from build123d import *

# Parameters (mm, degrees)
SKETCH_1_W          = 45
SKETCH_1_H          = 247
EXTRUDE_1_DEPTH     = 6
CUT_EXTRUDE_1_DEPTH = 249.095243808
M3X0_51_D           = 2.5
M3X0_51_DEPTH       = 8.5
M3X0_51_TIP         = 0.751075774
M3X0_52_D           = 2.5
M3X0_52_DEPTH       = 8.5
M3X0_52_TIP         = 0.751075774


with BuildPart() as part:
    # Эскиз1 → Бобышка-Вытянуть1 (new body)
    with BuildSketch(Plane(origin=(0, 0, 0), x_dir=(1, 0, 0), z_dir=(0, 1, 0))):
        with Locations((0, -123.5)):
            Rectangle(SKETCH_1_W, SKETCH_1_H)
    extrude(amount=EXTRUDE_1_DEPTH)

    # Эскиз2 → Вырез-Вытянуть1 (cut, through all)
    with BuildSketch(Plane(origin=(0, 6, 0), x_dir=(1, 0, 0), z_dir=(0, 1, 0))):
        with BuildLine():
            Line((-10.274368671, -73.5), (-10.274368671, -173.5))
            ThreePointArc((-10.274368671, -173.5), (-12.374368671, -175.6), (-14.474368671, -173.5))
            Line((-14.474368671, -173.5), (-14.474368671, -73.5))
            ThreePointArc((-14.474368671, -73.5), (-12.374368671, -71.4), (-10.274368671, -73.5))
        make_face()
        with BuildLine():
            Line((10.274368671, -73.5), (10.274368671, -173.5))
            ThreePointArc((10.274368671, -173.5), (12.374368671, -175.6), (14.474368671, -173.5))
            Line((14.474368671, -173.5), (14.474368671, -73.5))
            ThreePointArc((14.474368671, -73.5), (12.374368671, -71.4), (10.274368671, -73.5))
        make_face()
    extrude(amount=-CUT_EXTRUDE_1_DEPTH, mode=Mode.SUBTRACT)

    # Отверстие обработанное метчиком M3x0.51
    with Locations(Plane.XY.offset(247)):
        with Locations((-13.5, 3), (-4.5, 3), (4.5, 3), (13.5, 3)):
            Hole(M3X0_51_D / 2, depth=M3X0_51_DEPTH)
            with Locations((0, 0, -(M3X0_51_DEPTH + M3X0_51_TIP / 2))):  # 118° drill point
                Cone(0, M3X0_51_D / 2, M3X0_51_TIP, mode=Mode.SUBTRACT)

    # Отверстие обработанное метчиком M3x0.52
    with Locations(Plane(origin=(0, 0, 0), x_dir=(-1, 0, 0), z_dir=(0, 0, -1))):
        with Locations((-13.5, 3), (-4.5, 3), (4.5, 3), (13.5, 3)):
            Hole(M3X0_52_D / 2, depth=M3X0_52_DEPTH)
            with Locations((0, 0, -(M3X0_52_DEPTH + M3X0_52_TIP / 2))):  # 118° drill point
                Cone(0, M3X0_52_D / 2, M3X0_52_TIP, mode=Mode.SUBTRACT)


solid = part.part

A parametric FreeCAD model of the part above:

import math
import FreeCAD as App
import Part
import Sketcher

V = App.Vector


def add_polygon(sketch, points):
    """Adds a closed chain of lines whose ends are joined by coincident constraints."""
    first, n = sketch.GeometryCount, len(points)
    for a, b in zip(points, points[1:] + points[:1]):
        sketch.addGeometry(Part.LineSegment(App.Vector(*a, 0), App.Vector(*b, 0)), False)
    for i in range(n):
        sketch.addConstraint(Sketcher.Constraint("Coincident", first + i, 2, first + (i + 1) % n, 1))

doc = App.newDocument("Part")
body = doc.addObject("PartDesign::Body", "Body")

# Sketch on XZ plane
sketch1 = doc.addObject("Sketcher::SketchObject", "Sketch")
body.addObject(sketch1)
sketch1.AttachmentSupport = (doc.XZ_Plane, [""])
sketch1.MapMode = "FlatFace"
add_polygon(sketch1, [(-22, 0), (-22, 247), (22, 247), (22, 0)])  # lines 0-3
sketch1.addConstraint(Sketcher.Constraint("Vertical", 0))
sketch1.addConstraint(Sketcher.Constraint("Horizontal", 1))
sketch1.addConstraint(Sketcher.Constraint("Vertical", 2))
sketch1.addConstraint(Sketcher.Constraint("Horizontal", 3))
sketch1.addConstraint(Sketcher.Constraint("Symmetric", 2, 2, 3, 2, -1, 1))
sketch1.addConstraint(Sketcher.Constraint("DistanceX", 1, 1, 1, 2, 45.0))
sketch1.addConstraint(Sketcher.Constraint("DistanceY", 0, 1, 0, 2, 247.0))
pad1 = doc.addObject("PartDesign::Pad", "Pad")
body.addObject(pad1)
pad1.Profile = sketch1
pad1.Length = 6
pad1.Reversed = True

# Sketch on XZ plane
sketch2 = doc.addObject("Sketcher::SketchObject", "Sketch001")
body.addObject(sketch2)
sketch2.AttachmentSupport = (doc.XZ_Plane, [""])
sketch2.MapMode = "FlatFace"
sketch2.AttachmentOffset = App.Placement(V(0, 0, -6), App.Rotation())
sketch2.addGeometry(Part.LineSegment(V(-10.3, 173.5, 0), V(-10.3, 73.5, 0)), False)
sketch2.addGeometry(Part.ArcOfCircle(Part.Circle(V(-12.4, 73.5, 0), V(0, 0, 1), 2.1), math.radians(180), math.radians(360)), False)
sketch2.addGeometry(Part.LineSegment(V(-14.5, 73.5, 0), V(-14.5, 173.5, 0)), False)
sketch2.addGeometry(Part.ArcOfCircle(Part.Circle(V(-12.4, 173.5, 0), V(0, 0, 1), 2.1), math.radians(0), math.radians(180)), False)
sketch2.addGeometry(Part.LineSegment(V(10.3, 73.5, 0), V(10.3, 173.5, 0)), False)
sketch2.addGeometry(Part.ArcOfCircle(Part.Circle(V(12.4, 173.5, 0), V(0, 0, 1), 2.1), math.radians(0), math.radians(180)), False)
sketch2.addGeometry(Part.LineSegment(V(14.5, 173.5, 0), V(14.5, 73.5, 0)), False)
sketch2.addGeometry(Part.ArcOfCircle(Part.Circle(V(12.4, 73.5, 0), V(0, 0, 1), 2.1), math.radians(180), math.radians(360)), False)
sketch2.addConstraint(Sketcher.Constraint("Tangent", 0, 2, 1, 2))
sketch2.addConstraint(Sketcher.Constraint("Tangent", 1, 1, 2, 1))
sketch2.addConstraint(Sketcher.Constraint("Tangent", 2, 2, 3, 2))
sketch2.addConstraint(Sketcher.Constraint("Tangent", 3, 1, 0, 1))
sketch2.addConstraint(Sketcher.Constraint("Tangent", 4, 2, 5, 2))
sketch2.addConstraint(Sketcher.Constraint("Tangent", 5, 1, 6, 1))
sketch2.addConstraint(Sketcher.Constraint("Tangent", 6, 2, 7, 2))
sketch2.addConstraint(Sketcher.Constraint("Tangent", 7, 1, 4, 1))
sketch2.addConstraint(Sketcher.Constraint("Vertical", 0))
sketch2.addConstraint(Sketcher.Constraint("Vertical", 2))
sketch2.addConstraint(Sketcher.Constraint("Vertical", 4))
sketch2.addConstraint(Sketcher.Constraint("Vertical", 6))
sketch2.addConstraint(Sketcher.Constraint("Equal", 3, 5))
sketch2.addConstraint(Sketcher.Constraint("Symmetric", 3, 3, 5, 3, -2))
sketch2.addConstraint(Sketcher.Constraint("Horizontal", 1, 3, 7, 3))
sketch2.addConstraint(Sketcher.Constraint("Radius", 1, 2.1))
sketch2.addConstraint(Sketcher.Constraint("DistanceY", 0, 2, 0, 1, 100.0))
sketch2.addConstraint(Sketcher.Constraint("DistanceY", -1, 1, 1, 3, 73.5))
sketch2.addConstraint(Sketcher.Constraint("DistanceX", 1, 3, -1, 1, 12.374369))
pocket1 = doc.addObject("PartDesign::Pocket", "Pocket")
body.addObject(pocket1)
pocket1.Profile = sketch2
pocket1.Type = "ThroughAll"
pocket1.Reversed = True

# Sketch on XY plane
sketch3 = doc.addObject("Sketcher::SketchObject", "Sketch002")
body.addObject(sketch3)
sketch3.AttachmentSupport = (doc.XY_Plane, [""])
sketch3.MapMode = "FlatFace"
sketch3.AttachmentOffset = App.Placement(V(0, 0, 247), App.Rotation())
sketch3.addGeometry(Part.Circle(V(-13.5, 3, 0), V(0, 0, 1), 1.2), False)
sketch3.addGeometry(Part.Circle(V(-4.5, 3, 0), V(0, 0, 1), 1.2), False)
sketch3.addGeometry(Part.Circle(V(4.5, 3, 0), V(0, 0, 1), 1.2), False)
sketch3.addGeometry(Part.Circle(V(13.5, 3, 0), V(0, 0, 1), 1.2), False)
sketch3.addConstraint(Sketcher.Constraint("Equal", 0, 1))
sketch3.addConstraint(Sketcher.Constraint("Equal", 1, 2))
sketch3.addConstraint(Sketcher.Constraint("Equal", 2, 3))
sketch3.addConstraint(Sketcher.Constraint("Symmetric", 1, 3, 2, 3, -2))
sketch3.addConstraint(Sketcher.Constraint("Symmetric", 0, 3, 3, 3, -2))
sketch3.addConstraint(Sketcher.Constraint("Horizontal", 0, 3, 1, 3))
sketch3.addConstraint(Sketcher.Constraint("Diameter", 0, 2.5))
sketch3.addConstraint(Sketcher.Constraint("DistanceY", -1, 1, 0, 3, 3.0))
sketch3.addConstraint(Sketcher.Constraint("DistanceX", 0, 3, 1, 3, 9.0))
sketch3.addConstraint(Sketcher.Constraint("DistanceX", 1, 3, 2, 3, 9.0))
doc.recompute()
hole = doc.addObject("PartDesign::Hole", "Hole")
body.addObject(hole)
hole.Profile = sketch3
hole.ThreadType = "None"
hole.Diameter = 2.5
hole.DepthType = "Dimension"
hole.Depth = 8.5
hole.DrillPoint = "Angled"
hole.DrillPointAngle = 118

# Sketch on XY plane
sketch4 = doc.addObject("Sketcher::SketchObject", "Sketch003")
body.addObject(sketch4)
sketch4.AttachmentSupport = (doc.XY_Plane, [""])
sketch4.MapMode = "FlatFace"
sketch4.addGeometry(Part.Circle(V(13.5, 3, 0), V(0, 0, 1), 1.2), False)
sketch4.addGeometry(Part.Circle(V(4.5, 3, 0), V(0, 0, 1), 1.2), False)
sketch4.addGeometry(Part.Circle(V(-4.5, 3, 0), V(0, 0, 1), 1.2), False)
sketch4.addGeometry(Part.Circle(V(-13.5, 3, 0), V(0, 0, 1), 1.2), False)
sketch4.addConstraint(Sketcher.Constraint("Equal", 0, 1))
sketch4.addConstraint(Sketcher.Constraint("Equal", 1, 2))
sketch4.addConstraint(Sketcher.Constraint("Equal", 2, 3))
sketch4.addConstraint(Sketcher.Constraint("Symmetric", 1, 3, 2, 3, -2))
sketch4.addConstraint(Sketcher.Constraint("Symmetric", 0, 3, 3, 3, -2))
sketch4.addConstraint(Sketcher.Constraint("Horizontal", 0, 3, 1, 3))
sketch4.addConstraint(Sketcher.Constraint("Diameter", 0, 2.5))
sketch4.addConstraint(Sketcher.Constraint("DistanceY", -1, 1, 0, 3, 3.0))
sketch4.addConstraint(Sketcher.Constraint("DistanceX", 1, 3, 0, 3, 9.0))
sketch4.addConstraint(Sketcher.Constraint("DistanceX", 2, 3, 1, 3, 9.0))
doc.recompute()
hole2 = doc.addObject("PartDesign::Hole", "Hole001")
body.addObject(hole2)
hole2.Profile = sketch4
hole2.ThreadType = "None"
hole2.Diameter = 2.5
hole2.DepthType = "Dimension"
hole2.Depth = 8.5
hole2.DrillPoint = "Angled"
hole2.DrillPointAngle = 118
hole2.Reversed = True

doc.recompute()
